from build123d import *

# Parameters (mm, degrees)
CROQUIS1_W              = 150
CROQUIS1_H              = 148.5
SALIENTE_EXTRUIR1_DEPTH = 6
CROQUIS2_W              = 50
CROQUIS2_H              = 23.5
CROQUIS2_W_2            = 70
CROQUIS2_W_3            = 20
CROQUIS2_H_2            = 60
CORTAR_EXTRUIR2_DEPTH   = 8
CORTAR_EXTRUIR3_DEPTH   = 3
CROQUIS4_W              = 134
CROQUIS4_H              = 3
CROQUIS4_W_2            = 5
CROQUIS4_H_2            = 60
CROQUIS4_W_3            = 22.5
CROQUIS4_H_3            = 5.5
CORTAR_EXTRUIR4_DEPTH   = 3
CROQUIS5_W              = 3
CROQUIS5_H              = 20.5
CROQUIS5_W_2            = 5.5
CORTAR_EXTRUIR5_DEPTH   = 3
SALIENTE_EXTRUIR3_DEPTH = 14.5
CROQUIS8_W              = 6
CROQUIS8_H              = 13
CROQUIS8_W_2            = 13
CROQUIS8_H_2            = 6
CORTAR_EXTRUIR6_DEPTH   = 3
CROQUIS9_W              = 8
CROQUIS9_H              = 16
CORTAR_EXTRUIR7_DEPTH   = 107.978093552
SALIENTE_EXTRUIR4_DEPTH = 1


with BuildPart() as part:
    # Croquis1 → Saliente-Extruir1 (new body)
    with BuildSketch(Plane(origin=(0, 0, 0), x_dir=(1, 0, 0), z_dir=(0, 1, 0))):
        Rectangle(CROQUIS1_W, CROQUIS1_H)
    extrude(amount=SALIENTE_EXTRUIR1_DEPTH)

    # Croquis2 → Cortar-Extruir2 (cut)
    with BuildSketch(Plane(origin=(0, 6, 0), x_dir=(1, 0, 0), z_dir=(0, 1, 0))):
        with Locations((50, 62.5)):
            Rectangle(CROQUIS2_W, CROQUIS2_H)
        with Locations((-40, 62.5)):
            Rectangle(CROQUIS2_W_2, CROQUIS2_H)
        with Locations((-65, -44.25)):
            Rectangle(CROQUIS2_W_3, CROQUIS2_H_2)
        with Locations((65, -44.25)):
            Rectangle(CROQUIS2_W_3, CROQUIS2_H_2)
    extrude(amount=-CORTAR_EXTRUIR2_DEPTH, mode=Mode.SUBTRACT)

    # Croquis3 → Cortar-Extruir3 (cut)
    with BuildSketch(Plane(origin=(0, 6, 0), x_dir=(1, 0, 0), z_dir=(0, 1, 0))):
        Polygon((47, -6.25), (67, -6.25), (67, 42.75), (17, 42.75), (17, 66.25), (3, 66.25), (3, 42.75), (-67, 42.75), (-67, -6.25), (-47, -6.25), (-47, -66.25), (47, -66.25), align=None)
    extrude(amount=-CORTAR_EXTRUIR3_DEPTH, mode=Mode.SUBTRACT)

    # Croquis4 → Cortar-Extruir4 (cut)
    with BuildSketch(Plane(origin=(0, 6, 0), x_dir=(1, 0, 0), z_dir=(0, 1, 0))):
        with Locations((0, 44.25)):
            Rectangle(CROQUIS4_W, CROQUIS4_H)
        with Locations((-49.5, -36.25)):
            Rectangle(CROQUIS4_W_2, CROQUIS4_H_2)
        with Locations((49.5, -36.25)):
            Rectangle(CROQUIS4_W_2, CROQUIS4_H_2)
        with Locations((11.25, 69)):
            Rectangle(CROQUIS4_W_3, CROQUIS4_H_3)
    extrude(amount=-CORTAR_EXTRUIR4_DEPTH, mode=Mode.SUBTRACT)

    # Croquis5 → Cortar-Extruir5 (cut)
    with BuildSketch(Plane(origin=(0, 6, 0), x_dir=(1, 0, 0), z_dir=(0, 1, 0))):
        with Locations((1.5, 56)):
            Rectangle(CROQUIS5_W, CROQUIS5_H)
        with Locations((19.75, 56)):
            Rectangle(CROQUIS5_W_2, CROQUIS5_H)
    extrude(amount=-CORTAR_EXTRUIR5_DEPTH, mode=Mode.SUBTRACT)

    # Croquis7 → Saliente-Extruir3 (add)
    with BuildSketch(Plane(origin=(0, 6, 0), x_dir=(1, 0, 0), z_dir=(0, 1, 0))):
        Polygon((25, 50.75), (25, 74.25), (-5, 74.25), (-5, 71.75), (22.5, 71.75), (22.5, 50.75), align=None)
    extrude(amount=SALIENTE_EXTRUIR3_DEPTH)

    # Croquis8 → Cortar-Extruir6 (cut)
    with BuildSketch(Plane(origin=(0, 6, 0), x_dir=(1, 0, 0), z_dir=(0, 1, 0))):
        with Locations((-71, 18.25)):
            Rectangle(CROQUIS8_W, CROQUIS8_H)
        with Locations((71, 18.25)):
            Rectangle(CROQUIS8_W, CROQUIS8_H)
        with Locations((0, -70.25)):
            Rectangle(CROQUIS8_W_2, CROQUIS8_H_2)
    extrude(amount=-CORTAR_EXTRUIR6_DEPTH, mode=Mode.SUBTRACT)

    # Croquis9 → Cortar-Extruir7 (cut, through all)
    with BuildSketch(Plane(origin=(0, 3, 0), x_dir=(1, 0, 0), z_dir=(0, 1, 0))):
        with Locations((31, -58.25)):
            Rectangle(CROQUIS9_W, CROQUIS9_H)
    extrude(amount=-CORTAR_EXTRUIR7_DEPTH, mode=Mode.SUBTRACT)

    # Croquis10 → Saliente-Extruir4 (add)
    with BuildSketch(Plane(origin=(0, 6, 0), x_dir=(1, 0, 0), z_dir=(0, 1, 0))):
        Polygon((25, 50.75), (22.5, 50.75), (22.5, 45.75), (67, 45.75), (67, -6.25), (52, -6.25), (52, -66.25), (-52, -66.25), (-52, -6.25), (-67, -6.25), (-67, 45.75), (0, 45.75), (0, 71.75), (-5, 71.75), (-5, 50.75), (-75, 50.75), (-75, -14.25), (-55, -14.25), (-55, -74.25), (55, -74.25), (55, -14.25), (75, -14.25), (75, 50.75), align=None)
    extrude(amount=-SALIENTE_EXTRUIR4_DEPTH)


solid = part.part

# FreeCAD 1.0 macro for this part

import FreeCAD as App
import Part
import Sketcher
from FreeCAD import Vector
Q = App.Units.Quantity


def add_polygon(sketch, points):
    """Adds a closed chain of lines whose ends are joined by coincident constraints."""
    first, n = sketch.GeometryCount, len(points)
    for a, b in zip(points, points[1:] + points[:1]):
        sketch.addGeometry(Part.LineSegment(App.Vector(*a, 0), App.Vector(*b, 0)), False)
    for i in range(n):
        sketch.addConstraint(Sketcher.Constraint("Coincident", first + i, 2, first + (i + 1) % n, 1))

doc = App.newDocument("Part")
body = doc.addObject("PartDesign::Body", "Body")

# Sketch on XZ plane
sketch1 = body.newObject("Sketcher::SketchObject", "Sketch")
sketch1.AttachmentSupport = (doc.getObject("XZ_Plane"), [""])
sketch1.MapMode = "FlatFace"
add_polygon(sketch1, [(-75, -74), (-75, 74), (75, 74), (75, -74)])  # lines 0-3
sketch1.addConstraint([
    Sketcher.Constraint("Vertical", 0),
    Sketcher.Constraint("Horizontal", 1),
    Sketcher.Constraint("Vertical", 2),
    Sketcher.Constraint("Horizontal", 3),
    Sketcher.Constraint("Symmetric", 0, 2, 2, 2, -1, 1),
    Sketcher.Constraint("DistanceX", 1, 1, 1, 2, Q("150 mm")),
    Sketcher.Constraint("DistanceY", 0, 1, 0, 2, Q("148.5 mm")),
])
pad1 = body.newObject("PartDesign::Pad", "Pad")
pad1.Profile = sketch1
pad1.Length = 6
pad1.Reversed = True

# Sketch on XZ plane
sketch2 = body.newObject("Sketcher::SketchObject", "Sketch001")
sketch2.AttachmentSupport = (doc.getObject("XZ_Plane"), [""])
sketch2.MapMode = "FlatFace"
sketch2.AttachmentOffset = App.Placement(Vector(0, 0, -6), App.Rotation())
add_polygon(sketch2, [(25, -74), (25, -51), (75, -51), (75, -74)])  # lines 0-3
add_polygon(sketch2, [(-75, -74), (-75, -51), (-5, -51), (-5, -74)])  # lines 4-7
add_polygon(sketch2, [(-75, 14), (-75, 74), (-55, 74), (-55, 14)])  # lines 8-11
add_polygon(sketch2, [(55, 14), (55, 74), (75, 74), (75, 14)])  # lines 12-15
sketch2.addConstraint([
    Sketcher.Constraint("Vertical", 0),
    Sketcher.Constraint("Horizontal", 1),
    Sketcher.Constraint("Vertical", 2),
    Sketcher.Constraint("Horizontal", 3),
    Sketcher.Constraint("Vertical", 4),
    Sketcher.Constraint("Horizontal", 5),
    Sketcher.Constraint("Vertical", 6),
    Sketcher.Constraint("Horizontal", 7),
    Sketcher.Constraint("Vertical", 8),
    Sketcher.Constraint("Horizontal", 9),
    Sketcher.Constraint("Vertical", 10),
    Sketcher.Constraint("Horizontal", 11),
    Sketcher.Constraint("Vertical", 12),
    Sketcher.Constraint("Horizontal", 13),
    Sketcher.Constraint("Vertical", 14),
    Sketcher.Constraint("Horizontal", 15),
    Sketcher.Constraint("Symmetric", 2, 2, 8, 2, -1, 1),
    Sketcher.Constraint("Symmetric", 7, 2, 13, 2, -1, 1),
    Sketcher.Constraint("Symmetric", 1, 2, 4, 2, -2),
    Sketcher.Constraint("Symmetric", 9, 2, 12, 2, -2),
    Sketcher.Constraint("Horizontal", 11, 2, 14, 2),
    Sketcher.Constraint("DistanceX", 1, 1, 1, 2, Q("50 mm")),
    Sketcher.Constraint("DistanceX", 5, 1, 5, 2, Q("70 mm")),
    Sketcher.Constraint("DistanceX", 9, 1, 9, 2, Q("20 mm")),
    Sketcher.Constraint("DistanceY", 8, 1, 8, 2, Q("60 mm")),
    Sketcher.Constraint("DistanceY", 0, 1, 0, 2, Q("23.5 mm")),
    Sketcher.Constraint("DistanceX", -1, 1, 0, 2, Q("25 mm")),
    Sketcher.Constraint("DistanceY", 4, 2, 8, 2, Q("125 mm")),
])
pocket1 = body.newObject("PartDesign::Pocket", "Pocket")
pocket1.Profile = sketch2
pocket1.Length = 8
pocket1.Reversed = True

# Sketch on XZ plane
sketch3 = body.newObject("Sketcher::SketchObject", "Sketch002")
sketch3.AttachmentSupport = (doc.getObject("XZ_Plane"), [""])
sketch3.MapMode = "FlatFace"
sketch3.AttachmentOffset = App.Placement(Vector(0, 0, -6), App.Rotation())
add_polygon(sketch3, [(47, 6), (67, 6), (67, -43), (17, -43), (17, -66), (3, -66), (3, -43), (-67, -43), (-67, 6), (-47, 6), (-47, 66), (47, 66)])  # lines 0-11
sketch3.addConstraint([
    Sketcher.Constraint("Horizontal", 0),
    Sketcher.Constraint("Vertical", 1),
    Sketcher.Constraint("Horizontal", 2),
    Sketcher.Constraint("Vertical", 3),
    Sketcher.Constraint("Horizontal", 4),
    Sketcher.Constraint("Vertical", 5),
    Sketcher.Constraint("Horizontal", 6),
    Sketcher.Constraint("Vertical", 7),
    Sketcher.Constraint("Horizontal", 8),
    Sketcher.Constraint("Vertical", 9),
    Sketcher.Constraint("Horizontal", 10),
    Sketcher.Constraint("Vertical", 11),
    Sketcher.Constraint("Symmetric", 1, 2, 6, 2, -2),
    Sketcher.Constraint("Symmetric", 8, 2, 11, 2, -2),
    Sketcher.Constraint("DistanceX", 0, 1, 0, 2, Q("20 mm")),
    Sketcher.Constraint("DistanceX", 2, 2, 2, 1, Q("50 mm")),
    Sketcher.Constraint("DistanceX", 4, 2, 4, 1, Q("14 mm")),
    Sketcher.Constraint("DistanceX", 6, 2, 6, 1, Q("70 mm")),
    Sketcher.Constraint("DistanceY", 1, 2, 1, 1, Q("49 mm")),
    Sketcher.Constraint("DistanceY", 9, 1, 9, 2, Q("60 mm")),
    Sketcher.Constraint("DistanceY", 3, 2, 3, 1, Q("23.5 mm")),
    Sketcher.Constraint("DistanceY", -1, 1, 0, 2, Q("6.25 mm")),
])
pocket2 = body.newObject("PartDesign::Pocket", "Pocket001")
pocket2.Profile = sketch3
pocket2.Length = 3
pocket2.Reversed = True

# Sketch on XZ plane
sketch4 = body.newObject("Sketcher::SketchObject", "Sketch003")
sketch4.AttachmentSupport = (doc.getObject("XZ_Plane"), [""])
sketch4.MapMode = "FlatFace"
sketch4.AttachmentOffset = App.Placement(Vector(0, 0, -6), App.Rotation())
add_polygon(sketch4, [(-67, -45.8), (-67, -42.8), (67, -42.8), (67, -45.8)])  # lines 0-3
add_polygon(sketch4, [(-52, 6.2), (-52, 66.2), (-47, 66.2), (-47, 6.2)])  # lines 4-7
add_polygon(sketch4, [(47, 6.2), (47, 66.2), (52, 66.2), (52, 6.2)])  # lines 8-11
add_polygon(sketch4, [(0, -71.8), (0, -66.2), (22.5, -66.2), (22.5, -71.8)])  # lines 12-15
sketch4.addConstraint([
    Sketcher.Constraint("Vertical", 0),
    Sketcher.Constraint("Horizontal", 1),
    Sketcher.Constraint("Vertical", 2),
    Sketcher.Constraint("Horizontal", 3),
    Sketcher.Constraint("Vertical", 4),
    Sketcher.Constraint("Horizontal", 5),
    Sketcher.Constraint("Vertical", 6),
    Sketcher.Constraint("Horizontal", 7),
    Sketcher.Constraint("Vertical", 8),
    Sketcher.Constraint("Horizontal", 9),
    Sketcher.Constraint("Vertical", 10),
    Sketcher.Constraint("Horizontal", 11),
    Sketcher.Constraint("Vertical", 12),
    Sketcher.Constraint("Horizontal", 13),
    Sketcher.Constraint("Vertical", 14),
    Sketcher.Constraint("Horizontal", 15),
    Sketcher.Constraint("Symmetric", 5, 2, 8, 2, -2),
    Sketcher.Constraint("Symmetric", 7, 2, 10, 2, -2),
    Sketcher.Constraint("PointOnObject", 12, 2, -2),
    Sketcher.Constraint("DistanceX", 1, 1, 1, 2, Q("134 mm")),
    Sketcher.Constraint("DistanceX", 5, 1, 5, 2, Q("5 mm")),
    Sketcher.Constraint("DistanceY", 0, 1, 0, 2, Q("3 mm")),
    Sketcher.Constraint("DistanceY", 4, 1, 4, 2, Q("60 mm")),
    Sketcher.Constraint("DistanceX", 13, 1, 13, 2, Q("22.5 mm")),
    Sketcher.Constraint("DistanceY", 12, 1, 12, 2, Q("5.5 mm")),
    Sketcher.Constraint("DistanceX", 0, 2, -1, 1, Q("67 mm")),
    Sketcher.Constraint("DistanceX", 4, 2, -1, 1, Q("52 mm")),
    Sketcher.Constraint("DistanceY", 0, 2, 4, 2, Q("109 mm")),
    Sketcher.Constraint("DistanceY", 14, 2, 2, 2, Q("26 mm")),
    Sketcher.Constraint("DistanceY", 0, 2, -1, 1, Q("42.75 mm")),
])
pocket3 = body.newObject("PartDesign::Pocket", "Pocket002")
pocket3.Profile = sketch4
pocket3.Length = 3
pocket3.Reversed = True

# Sketch on XZ plane
sketch5 = body.newObject("Sketcher::SketchObject", "Sketch004")
sketch5.AttachmentSupport = (doc.getObject("XZ_Plane"), [""])
sketch5.MapMode = "FlatFace"
sketch5.AttachmentOffset = App.Placement(Vector(0, 0, -6), App.Rotation())
add_polygon(sketch5, [(0, -66.2), (0, -45.8), (3, -45.8), (3, -66.2)])  # lines 0-3
add_polygon(sketch5, [(17, -66.2), (17, -45.8), (22.5, -45.8), (22.5, -66.2)])  # lines 4-7
sketch5.addConstraint([
    Sketcher.Constraint("Vertical", 0),
    Sketcher.Constraint("Horizontal", 1),
    Sketcher.Constraint("Vertical", 2),
    Sketcher.Constraint("Horizontal", 3),
    Sketcher.Constraint("Vertical", 4),
    Sketcher.Constraint("Horizontal", 5),
    Sketcher.Constraint("Vertical", 6),
    Sketcher.Constraint("Horizontal", 7),
    Sketcher.Constraint("PointOnObject", 0, 2, -2),
    Sketcher.Constraint("Horizontal", 1, 2, 4, 2),
    Sketcher.Constraint("Horizontal", 3, 2, 6, 2),
    Sketcher.Constraint("DistanceX", 1, 1, 1, 2, Q("3 mm")),
    Sketcher.Constraint("DistanceX", 5, 1, 5, 2, Q("5.5 mm")),
    Sketcher.Constraint("DistanceY", 0, 1, 0, 2, Q("20.5 mm")),
    Sketcher.Constraint("DistanceX", -1, 1, 4, 2, Q("17 mm")),
    Sketcher.Constraint("DistanceY", 0, 2, -1, 1, Q("45.75 mm")),
])
pocket4 = body.newObject("PartDesign::Pocket", "Pocket003")
pocket4.Profile = sketch5
pocket4.Length = 3
pocket4.Reversed = True

# Sketch on XZ plane
sketch6 = body.newObject("Sketcher::SketchObject", "Sketch005")
sketch6.AttachmentSupport = (doc.getObject("XZ_Plane"), [""])
sketch6.MapMode = "FlatFace"
sketch6.AttachmentOffset = App.Placement(Vector(0, 0, -6), App.Rotation())
add_polygon(sketch6, [(25, -50.8), (25, -74.2), (-5, -74.2), (-5, -71.8), (22.5, -71.8), (22.5, -50.8)])  # lines 0-5
sketch6.addConstraint([
    Sketcher.Constraint("Vertical", 0),
    Sketcher.Constraint("Horizontal", 1),
    Sketcher.Constraint("Vertical", 2),
    Sketcher.Constraint("Horizontal", 3),
    Sketcher.Constraint("Vertical", 4),
    Sketcher.Constraint("Horizontal", 5),
    Sketcher.Constraint("Equal", 5, 2),
    Sketcher.Constraint("DistanceX", 1, 2, 1, 1, Q("30 mm")),
    Sketcher.Constraint("DistanceY", 4, 1, 4, 2, Q("21 mm")),
    Sketcher.Constraint("DistanceX", 3, 1, 3, 2, Q("27.5 mm")),
    Sketcher.Constraint("DistanceX", -1, 1, 0, 2, Q("25 mm")),
    Sketcher.Constraint("DistanceY", 0, 2, -1, 1, Q("74.25 mm")),
])
pad2 = body.newObject("PartDesign::Pad", "Pad001")
pad2.Profile = sketch6
pad2.Length = 14.5
pad2.Reversed = True

# Sketch on XZ plane
sketch7 = body.newObject("Sketcher::SketchObject", "Sketch006")
sketch7.AttachmentSupport = (doc.getObject("XZ_Plane"), [""])
sketch7.MapMode = "FlatFace"
sketch7.AttachmentOffset = App.Placement(Vector(0, 0, -6), App.Rotation())
add_polygon(sketch7, [(-74, -25), (-74, -12), (-68, -12), (-68, -25)])  # lines 0-3
add_polygon(sketch7, [(68, -25), (68, -12), (74, -12), (74, -25)])  # lines 4-7
add_polygon(sketch7, [(-6, 67), (-6, 73), (6, 73), (6, 67)])  # lines 8-11
sketch7.addConstraint([
    Sketcher.Constraint("Vertical", 0),
    Sketcher.Constraint("Horizontal", 1),
    Sketcher.Constraint("Vertical", 2),
    Sketcher.Constraint("Horizontal", 3),
    Sketcher.Constraint("Vertical", 4),
    Sketcher.Constraint("Horizontal", 5),
    Sketcher.Constraint("Vertical", 6),
    Sketcher.Constraint("Horizontal", 7),
    Sketcher.Constraint("Vertical", 8),
    Sketcher.Constraint("Horizontal", 9),
    Sketcher.Constraint("Vertical", 10),
    Sketcher.Constraint("Horizontal", 11),
    Sketcher.Constraint("Symmetric", 1, 2, 4, 2, -2),
    Sketcher.Constraint("Symmetric", 3, 2, 6, 2, -2),
    Sketcher.Constraint("Equal", 11, 0),
    Sketcher.Constraint("Equal", 7, 8),
    Sketcher.Constraint("DistanceX", 1, 1, 1, 2, Q("6 mm")),
    Sketcher.Constraint("DistanceX", 9, 1, 9, 2, Q("13 mm")),
    Sketcher.Constraint("DistanceX", 0, 2, -1, 1, Q("74 mm")),
    Sketcher.Constraint("DistanceY", 1, 2, 8, 2, Q("85 mm")),
    Sketcher.Constraint("DistanceX", 8, 2, -1, 1, Q("6.5 mm")),
    Sketcher.Constraint("DistanceY", 0, 2, -1, 1, Q("11.75 mm")),
])
pocket5 = body.newObject("PartDesign::Pocket", "Pocket004")
pocket5.Profile = sketch7
pocket5.Length = 3
pocket5.Reversed = True

# Sketch on XZ plane
sketch8 = body.newObject("Sketcher::SketchObject", "Sketch007")
sketch8.AttachmentSupport = (doc.getObject("XZ_Plane"), [""])
sketch8.MapMode = "FlatFace"
sketch8.AttachmentOffset = App.Placement(Vector(0, 0, -3), App.Rotation())
add_polygon(sketch8, [(27, 50), (27, 66), (35, 66), (35, 50)])  # lines 0-3
sketch8.addConstraint([
    Sketcher.Constraint("Vertical", 0),
    Sketcher.Constraint("Horizontal", 1),
    Sketcher.Constraint("Vertical", 2),
    Sketcher.Constraint("Horizontal", 3),
    Sketcher.Constraint("DistanceX", 1, 1, 1, 2, Q("8 mm")),
    Sketcher.Constraint("DistanceY", 0, 1, 0, 2, Q("16 mm")),
    Sketcher.Constraint("DistanceX", -1, 1, 0, 2, Q("27 mm")),
    Sketcher.Constraint("DistanceY", -1, 1, 0, 2, Q("66.25 mm")),
])
pocket6 = body.newObject("PartDesign::Pocket", "Pocket005")
pocket6.Profile = sketch8
pocket6.Type = "ThroughAll"
pocket6.Reversed = True

# Sketch on XZ plane
sketch9 = body.newObject("Sketcher::SketchObject", "Sketch008")
sketch9.AttachmentSupport = (doc.getObject("XZ_Plane"), [""])
sketch9.MapMode = "FlatFace"
sketch9.AttachmentOffset = App.Placement(Vector(0, 0, -6), App.Rotation())
add_polygon(sketch9, [(22, -51), (22, -46), (67, -46), (67, 6), (52, 6), (52, 66), (-52, 66), (-52, 6), (-67, 6), (-67, -46), (0, -46), (0, -72), (-5, -72), (-5, -51), (-75, -51), (-75, 14), (-55, 14), (-55, 74), (55, 74), (55, 14), (75, 14), (75, -51)])  # lines 0-21
sketch9.addConstraint([
    Sketcher.Constraint("Vertical", 0),
    Sketcher.Constraint("Horizontal", 1),
    Sketcher.Constraint("Vertical", 2),
    Sketcher.Constraint("Horizontal", 3),
    Sketcher.Constraint("Vertical", 4),
    Sketcher.Constraint("Horizontal", 5),
    Sketcher.Constraint("Vertical", 6),
    Sketcher.Constraint("Horizontal", 7),
    Sketcher.Constraint("Vertical", 8),
    Sketcher.Constraint("Horizontal", 9),
    Sketcher.Constraint("Vertical", 10),
    Sketcher.Constraint("Horizontal", 11),
    Sketcher.Constraint("Vertical", 12),
    Sketcher.Constraint("Horizontal", 13),
    Sketcher.Constraint("Vertical", 14),
    Sketcher.Constraint("Horizontal", 15),
    Sketcher.Constraint("Vertical", 16),
    Sketcher.Constraint("Horizontal", 17),
    Sketcher.Constraint("Vertical", 18),
    Sketcher.Constraint("Horizontal", 19),
    Sketcher.Constraint("Vertical", 20),
    Sketcher.Constraint("Horizontal", 21),
    Sketcher.Constraint("Symmetric", 3, 2, 6, 2, -2),
    Sketcher.Constraint("Symmetric", 1, 2, 8, 2, -2),
    Sketcher.Constraint("Symmetric", 15, 2, 18, 2, -2),
    Sketcher.Constraint("Symmetric", 13, 2, 20, 2, -2),
    Sketcher.Constraint("PointOnObject", 9, 2, -2),
    Sketcher.Constraint("Equal", 11, 0),
    Sketcher.Constraint("Equal", 6, 16),
    Sketcher.Constraint("DistanceX", 3, 2, 3, 1, Q("15 mm")),
    Sketcher.Constraint("DistanceX", 5, 2, 5, 1, Q("104 mm")),
    Sketcher.Constraint("DistanceX", 11, 2, 11, 1, Q("5 mm")),
    Sketcher.Constraint("DistanceX", 13, 2, 13, 1, Q("70 mm")),
    Sketcher.Constraint("DistanceX", 15, 1, 15, 2, Q("20 mm")),
    Sketcher.Constraint("DistanceY", 2, 1, 2, 2, Q("52 mm")),
    Sketcher.Constraint("DistanceY", 4, 1, 4, 2, Q("60 mm")),
    Sketcher.Constraint("DistanceY", 10, 2, 10, 1, Q("26 mm")),
    Sketcher.Constraint("DistanceY", 14, 1, 14, 2, Q("65 mm")),
    Sketcher.Constraint("DistanceX", 1, 1, 1, 2, Q("44.5 mm")),
    Sketcher.Constraint("DistanceY", 0, 2, -1, 1, Q("45.75 mm")),
])
pad3 = body.newObject("PartDesign::Pad", "Pad002")
pad3.Profile = sketch9
pad3.Length = 1

doc.recompute()
